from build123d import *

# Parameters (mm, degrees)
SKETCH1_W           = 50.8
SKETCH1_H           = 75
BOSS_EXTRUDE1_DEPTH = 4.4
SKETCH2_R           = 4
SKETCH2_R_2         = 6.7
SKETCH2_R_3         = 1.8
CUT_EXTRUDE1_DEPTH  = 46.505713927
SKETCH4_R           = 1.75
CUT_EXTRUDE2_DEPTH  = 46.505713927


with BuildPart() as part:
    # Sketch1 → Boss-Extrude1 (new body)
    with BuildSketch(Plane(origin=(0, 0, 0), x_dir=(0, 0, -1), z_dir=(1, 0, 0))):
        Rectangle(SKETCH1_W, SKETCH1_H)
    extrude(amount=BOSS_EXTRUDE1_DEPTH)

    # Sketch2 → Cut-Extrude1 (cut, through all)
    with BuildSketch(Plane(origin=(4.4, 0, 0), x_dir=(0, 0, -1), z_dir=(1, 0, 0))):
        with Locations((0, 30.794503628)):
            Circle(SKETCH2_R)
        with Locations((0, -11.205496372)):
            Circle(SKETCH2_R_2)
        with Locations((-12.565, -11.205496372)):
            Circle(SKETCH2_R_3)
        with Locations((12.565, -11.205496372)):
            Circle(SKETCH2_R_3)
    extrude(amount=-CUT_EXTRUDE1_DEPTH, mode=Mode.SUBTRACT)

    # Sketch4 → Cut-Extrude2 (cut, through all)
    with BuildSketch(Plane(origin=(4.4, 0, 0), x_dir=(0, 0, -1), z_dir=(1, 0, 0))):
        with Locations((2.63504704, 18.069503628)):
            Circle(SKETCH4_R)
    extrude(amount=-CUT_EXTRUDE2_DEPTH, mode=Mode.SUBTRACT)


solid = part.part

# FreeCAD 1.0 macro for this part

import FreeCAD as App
import Part
import Sketcher


def add_polygon(sketch, points):
    """Adds a closed chain of lines whose ends are joined by coincident constraints."""
    first, n = sketch.GeometryCount, len(points)
    for a, b in zip(points, points[1:] + points[:1]):
        sketch.addGeometry(Part.LineSegment(App.Vector(*a, 0), App.Vector(*b, 0)), False)
    for i in range(n):
        sketch.addConstraint(Sketcher.Constraint("Coincident", first + i, 2, first + (i + 1) % n, 1))

doc = App.newDocument("Part")
body = doc.addObject("PartDesign::Body", "Body")

sketch1 = doc.addObject("Sketcher::SketchObject", "Sketch")
body.addObject(sketch1)
sketch1.AttachmentSupport = (doc.YZ_Plane, [""])
sketch1.MapMode = "FlatFace"
add_polygon(sketch1, [(38, 25), (-38, 25), (-38, -25), (38, -25)])
sketch1.addConstraint(Sketcher.Constraint("Horizontal", 0))
sketch1.addConstraint(Sketcher.Constraint("Vertical", 1))
sketch1.addConstraint(Sketcher.Constraint("Horizontal", 2))
sketch1.addConstraint(Sketcher.Constraint("Vertical", 3))
sketch1.addConstraint(Sketcher.Constraint("Symmetric", 0, 2, 2, 2, -1, 1))
sketch1.addConstraint(Sketcher.Constraint("DistanceX", 0, 2, 0, 1, 75.0))
sketch1.addConstraint(Sketcher.Constraint("DistanceY", 1, 2, 1, 1, 50.8))
pad1 = doc.addObject("PartDesign::Pad", "Pad")
body.addObject(pad1)
pad1.Profile = sketch1
pad1.Length = 4.4

sketch2 = doc.addObject("Sketcher::SketchObject", "Sketch001")
body.addObject(sketch2)
sketch2.AttachmentSupport = (doc.YZ_Plane, [""])
sketch2.MapMode = "FlatFace"
sketch2.AttachmentOffset = App.Placement(App.Vector(0, 0, 4.4), App.Rotation())
sketch2.addGeometry(Part.Circle(App.Vector(30.8, 0, 0), App.Vector(0, 0, 1), 4), False)
sketch2.addGeometry(Part.Circle(App.Vector(-11.2, 0, 0), App.Vector(0, 0, 1), 6.7), False)
sketch2.addGeometry(Part.Circle(App.Vector(-11.2, 12.6, 0), App.Vector(0, 0, 1), 1.8), False)
sketch2.addGeometry(Part.Circle(App.Vector(-11.2, -12.6, 0), App.Vector(0, 0, 1), 1.8), False)
sketch2.addConstraint(Sketcher.Constraint("Equal", 2, 3))
sketch2.addConstraint(Sketcher.Constraint("Symmetric", 2, 3, 3, 3, -1))
sketch2.addConstraint(Sketcher.Constraint("PointOnObject", 0, 3, -1))
sketch2.addConstraint(Sketcher.Constraint("PointOnObject", 1, 3, -1))
sketch2.addConstraint(Sketcher.Constraint("Vertical", 1, 3, 2, 3))
sketch2.addConstraint(Sketcher.Constraint("Diameter", 0, 8.0))
sketch2.addConstraint(Sketcher.Constraint("Diameter", 1, 13.4))
sketch2.addConstraint(Sketcher.Constraint("Diameter", 2, 3.6))
sketch2.addConstraint(Sketcher.Constraint("DistanceX", 1, 3, 0, 3, 42.0))
sketch2.addConstraint(Sketcher.Constraint("DistanceY", 3, 3, 2, 3, 25.13))
sketch2.addConstraint(Sketcher.Constraint("DistanceX", -1, 1, 0, 3, 30.794504))
pocket1 = doc.addObject("PartDesign::Pocket", "Pocket")
body.addObject(pocket1)
pocket1.Profile = sketch2
pocket1.Type = "ThroughAll"

sketch3 = doc.addObject("Sketcher::SketchObject", "Sketch002")
body.addObject(sketch3)
sketch3.AttachmentSupport = (doc.YZ_Plane, [""])
sketch3.MapMode = "FlatFace"
sketch3.AttachmentOffset = App.Placement(App.Vector(0, 0, 4.4), App.Rotation())
sketch3.addGeometry(Part.Circle(App.Vector(18.1, -2.6, 0), App.Vector(0, 0, 1), 1.8), False)
sketch3.addConstraint(Sketcher.Constraint("Diameter", 0, 3.5))
sketch3.addConstraint(Sketcher.Constraint("DistanceX", -1, 1, 0, 3, 18.069504))
sketch3.addConstraint(Sketcher.Constraint("DistanceY", 0, 3, -1, 1, 2.635047))
pocket2 = doc.addObject("PartDesign::Pocket", "Pocket001")
body.addObject(pocket2)
pocket2.Profile = sketch3
pocket2.Type = "ThroughAll"

doc.recompute()
